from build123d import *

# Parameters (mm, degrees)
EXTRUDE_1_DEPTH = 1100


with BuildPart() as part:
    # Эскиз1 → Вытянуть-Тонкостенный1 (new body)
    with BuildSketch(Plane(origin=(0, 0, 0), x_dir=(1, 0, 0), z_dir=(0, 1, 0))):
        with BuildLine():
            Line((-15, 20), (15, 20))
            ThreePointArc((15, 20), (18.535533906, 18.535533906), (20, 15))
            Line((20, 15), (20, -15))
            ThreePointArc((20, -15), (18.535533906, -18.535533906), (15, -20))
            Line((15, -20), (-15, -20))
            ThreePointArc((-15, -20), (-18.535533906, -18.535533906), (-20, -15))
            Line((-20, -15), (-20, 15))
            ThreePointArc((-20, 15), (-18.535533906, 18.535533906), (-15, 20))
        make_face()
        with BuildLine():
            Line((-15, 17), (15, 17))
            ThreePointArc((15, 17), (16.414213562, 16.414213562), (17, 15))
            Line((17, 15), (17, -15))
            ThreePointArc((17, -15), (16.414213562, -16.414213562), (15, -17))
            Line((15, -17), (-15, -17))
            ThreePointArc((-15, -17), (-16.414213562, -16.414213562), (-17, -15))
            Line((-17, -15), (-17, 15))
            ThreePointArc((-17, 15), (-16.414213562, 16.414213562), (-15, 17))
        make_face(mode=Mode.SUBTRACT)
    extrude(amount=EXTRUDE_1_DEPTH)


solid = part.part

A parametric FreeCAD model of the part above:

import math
import FreeCAD as App
import Part
import Sketcher

V = App.Vector
Q = App.Units.Quantity

doc = App.newDocument("Part")
body = doc.addObject("PartDesign::Body", "Body")

# Sketch on XZ plane
sketch1 = body.newObject("Sketcher::SketchObject", "Sketch")
sketch1.AttachmentSupport = (doc.getObject("XZ_Plane"), [""])
sketch1.MapMode = "FlatFace"
sketch1.addGeometry([
    Part.LineSegment(V(15, -20, 0), V(-15, -20, 0)),  # 0
    Part.ArcOfCircle(Part.Circle(V(-15, -15, 0), V(0, 0, 1), 5), math.radians(180), math.radians(270)),  # 1
    Part.LineSegment(V(-20, -15, 0), V(-20, 15, 0)),  # 2
    Part.ArcOfCircle(Part.Circle(V(-15, 15, 0), V(0, 0, 1), 5), math.radians(90), math.radians(180)),  # 3
    Part.LineSegment(V(-15, 20, 0), V(15, 20, 0)),  # 4
    Part.ArcOfCircle(Part.Circle(V(15, 15, 0), V(0, 0, 1), 5), math.radians(0), math.radians(90)),  # 5
    Part.LineSegment(V(20, 15, 0), V(20, -15, 0)),  # 6
    Part.ArcOfCircle(Part.Circle(V(15, -15, 0), V(0, 0, 1), 5), math.radians(-90), math.radians(0)),  # 7
    Part.LineSegment(V(-15, -17, 0), V(15, -17, 0)),  # 8
    Part.ArcOfCircle(Part.Circle(V(15, -15, 0), V(0, 0, 1), 2), math.radians(-90), math.radians(0)),  # 9
    Part.LineSegment(V(17, -15, 0), V(17, 15, 0)),  # 10
    Part.ArcOfCircle(Part.Circle(V(15, 15, 0), V(0, 0, 1), 2), math.radians(0), math.radians(90)),  # 11
    Part.LineSegment(V(15, 17, 0), V(-15, 17, 0)),  # 12
    Part.ArcOfCircle(Part.Circle(V(-15, 15, 0), V(0, 0, 1), 2), math.radians(90), math.radians(180)),  # 13
    Part.LineSegment(V(-17, 15, 0), V(-17, -15, 0)),  # 14
    Part.ArcOfCircle(Part.Circle(V(-15, -15, 0), V(0, 0, 1), 2), math.radians(-180), math.radians(-90)),  # 15
], False)
sketch1.addConstraint([
    Sketcher.Constraint("Tangent", 0, 2, 1, 2),
    Sketcher.Constraint("Tangent", 1, 1, 2, 1),
    Sketcher.Constraint("Tangent", 2, 2, 3, 2),
    Sketcher.Constraint("Tangent", 3, 1, 4, 1),
    Sketcher.Constraint("Tangent", 4, 2, 5, 2),
    Sketcher.Constraint("Tangent", 5, 1, 6, 1),
    Sketcher.Constraint("Tangent", 6, 2, 7, 2),
    Sketcher.Constraint("Tangent", 7, 1, 0, 1),
    Sketcher.Constraint("Tangent", 8, 2, 9, 1),
    Sketcher.Constraint("Tangent", 9, 2, 10, 1),
    Sketcher.Constraint("Tangent", 10, 2, 11, 1),
    Sketcher.Constraint("Tangent", 11, 2, 12, 1),
    Sketcher.Constraint("Tangent", 12, 2, 13, 1),
    Sketcher.Constraint("Tangent", 13, 2, 14, 1),
    Sketcher.Constraint("Tangent", 14, 2, 15, 1),
    Sketcher.Constraint("Tangent", 15, 2, 8, 1),
    Sketcher.Constraint("Horizontal", 0),
    Sketcher.Constraint("Vertical", 2),
    Sketcher.Constraint("Horizontal", 4),
    Sketcher.Constraint("Vertical", 6),
    Sketcher.Constraint("Horizontal", 8),
    Sketcher.Constraint("Vertical", 10),
    Sketcher.Constraint("Horizontal", 12),
    Sketcher.Constraint("Vertical", 14),
    Sketcher.Constraint("Coincident", 9, 3, 7, 3),
    Sketcher.Constraint("Coincident", 11, 3, 5, 3),
    Sketcher.Constraint("Coincident", 13, 3, 3, 3),
    Sketcher.Constraint("Equal", 1, 3),
    Sketcher.Constraint("Equal", 3, 5),
    Sketcher.Constraint("Equal", 5, 7),
    Sketcher.Constraint("Equal", 13, 15),
    Sketcher.Constraint("Symmetric", 1, 3, 5, 3, -1, 1),
    Sketcher.Constraint("Equal", 12, 2),
    Sketcher.Constraint("Radius", 1, Q("5 mm")),
    Sketcher.Constraint("Radius", 9, Q("2 mm")),
    Sketcher.Constraint("DistanceX", 0, 2, 0, 1, Q("30 mm")),
])
pad1 = body.newObject("PartDesign::Pad", "Pad")
pad1.Profile = sketch1
pad1.Length = 1100
pad1.Reversed = True

doc.recompute()
